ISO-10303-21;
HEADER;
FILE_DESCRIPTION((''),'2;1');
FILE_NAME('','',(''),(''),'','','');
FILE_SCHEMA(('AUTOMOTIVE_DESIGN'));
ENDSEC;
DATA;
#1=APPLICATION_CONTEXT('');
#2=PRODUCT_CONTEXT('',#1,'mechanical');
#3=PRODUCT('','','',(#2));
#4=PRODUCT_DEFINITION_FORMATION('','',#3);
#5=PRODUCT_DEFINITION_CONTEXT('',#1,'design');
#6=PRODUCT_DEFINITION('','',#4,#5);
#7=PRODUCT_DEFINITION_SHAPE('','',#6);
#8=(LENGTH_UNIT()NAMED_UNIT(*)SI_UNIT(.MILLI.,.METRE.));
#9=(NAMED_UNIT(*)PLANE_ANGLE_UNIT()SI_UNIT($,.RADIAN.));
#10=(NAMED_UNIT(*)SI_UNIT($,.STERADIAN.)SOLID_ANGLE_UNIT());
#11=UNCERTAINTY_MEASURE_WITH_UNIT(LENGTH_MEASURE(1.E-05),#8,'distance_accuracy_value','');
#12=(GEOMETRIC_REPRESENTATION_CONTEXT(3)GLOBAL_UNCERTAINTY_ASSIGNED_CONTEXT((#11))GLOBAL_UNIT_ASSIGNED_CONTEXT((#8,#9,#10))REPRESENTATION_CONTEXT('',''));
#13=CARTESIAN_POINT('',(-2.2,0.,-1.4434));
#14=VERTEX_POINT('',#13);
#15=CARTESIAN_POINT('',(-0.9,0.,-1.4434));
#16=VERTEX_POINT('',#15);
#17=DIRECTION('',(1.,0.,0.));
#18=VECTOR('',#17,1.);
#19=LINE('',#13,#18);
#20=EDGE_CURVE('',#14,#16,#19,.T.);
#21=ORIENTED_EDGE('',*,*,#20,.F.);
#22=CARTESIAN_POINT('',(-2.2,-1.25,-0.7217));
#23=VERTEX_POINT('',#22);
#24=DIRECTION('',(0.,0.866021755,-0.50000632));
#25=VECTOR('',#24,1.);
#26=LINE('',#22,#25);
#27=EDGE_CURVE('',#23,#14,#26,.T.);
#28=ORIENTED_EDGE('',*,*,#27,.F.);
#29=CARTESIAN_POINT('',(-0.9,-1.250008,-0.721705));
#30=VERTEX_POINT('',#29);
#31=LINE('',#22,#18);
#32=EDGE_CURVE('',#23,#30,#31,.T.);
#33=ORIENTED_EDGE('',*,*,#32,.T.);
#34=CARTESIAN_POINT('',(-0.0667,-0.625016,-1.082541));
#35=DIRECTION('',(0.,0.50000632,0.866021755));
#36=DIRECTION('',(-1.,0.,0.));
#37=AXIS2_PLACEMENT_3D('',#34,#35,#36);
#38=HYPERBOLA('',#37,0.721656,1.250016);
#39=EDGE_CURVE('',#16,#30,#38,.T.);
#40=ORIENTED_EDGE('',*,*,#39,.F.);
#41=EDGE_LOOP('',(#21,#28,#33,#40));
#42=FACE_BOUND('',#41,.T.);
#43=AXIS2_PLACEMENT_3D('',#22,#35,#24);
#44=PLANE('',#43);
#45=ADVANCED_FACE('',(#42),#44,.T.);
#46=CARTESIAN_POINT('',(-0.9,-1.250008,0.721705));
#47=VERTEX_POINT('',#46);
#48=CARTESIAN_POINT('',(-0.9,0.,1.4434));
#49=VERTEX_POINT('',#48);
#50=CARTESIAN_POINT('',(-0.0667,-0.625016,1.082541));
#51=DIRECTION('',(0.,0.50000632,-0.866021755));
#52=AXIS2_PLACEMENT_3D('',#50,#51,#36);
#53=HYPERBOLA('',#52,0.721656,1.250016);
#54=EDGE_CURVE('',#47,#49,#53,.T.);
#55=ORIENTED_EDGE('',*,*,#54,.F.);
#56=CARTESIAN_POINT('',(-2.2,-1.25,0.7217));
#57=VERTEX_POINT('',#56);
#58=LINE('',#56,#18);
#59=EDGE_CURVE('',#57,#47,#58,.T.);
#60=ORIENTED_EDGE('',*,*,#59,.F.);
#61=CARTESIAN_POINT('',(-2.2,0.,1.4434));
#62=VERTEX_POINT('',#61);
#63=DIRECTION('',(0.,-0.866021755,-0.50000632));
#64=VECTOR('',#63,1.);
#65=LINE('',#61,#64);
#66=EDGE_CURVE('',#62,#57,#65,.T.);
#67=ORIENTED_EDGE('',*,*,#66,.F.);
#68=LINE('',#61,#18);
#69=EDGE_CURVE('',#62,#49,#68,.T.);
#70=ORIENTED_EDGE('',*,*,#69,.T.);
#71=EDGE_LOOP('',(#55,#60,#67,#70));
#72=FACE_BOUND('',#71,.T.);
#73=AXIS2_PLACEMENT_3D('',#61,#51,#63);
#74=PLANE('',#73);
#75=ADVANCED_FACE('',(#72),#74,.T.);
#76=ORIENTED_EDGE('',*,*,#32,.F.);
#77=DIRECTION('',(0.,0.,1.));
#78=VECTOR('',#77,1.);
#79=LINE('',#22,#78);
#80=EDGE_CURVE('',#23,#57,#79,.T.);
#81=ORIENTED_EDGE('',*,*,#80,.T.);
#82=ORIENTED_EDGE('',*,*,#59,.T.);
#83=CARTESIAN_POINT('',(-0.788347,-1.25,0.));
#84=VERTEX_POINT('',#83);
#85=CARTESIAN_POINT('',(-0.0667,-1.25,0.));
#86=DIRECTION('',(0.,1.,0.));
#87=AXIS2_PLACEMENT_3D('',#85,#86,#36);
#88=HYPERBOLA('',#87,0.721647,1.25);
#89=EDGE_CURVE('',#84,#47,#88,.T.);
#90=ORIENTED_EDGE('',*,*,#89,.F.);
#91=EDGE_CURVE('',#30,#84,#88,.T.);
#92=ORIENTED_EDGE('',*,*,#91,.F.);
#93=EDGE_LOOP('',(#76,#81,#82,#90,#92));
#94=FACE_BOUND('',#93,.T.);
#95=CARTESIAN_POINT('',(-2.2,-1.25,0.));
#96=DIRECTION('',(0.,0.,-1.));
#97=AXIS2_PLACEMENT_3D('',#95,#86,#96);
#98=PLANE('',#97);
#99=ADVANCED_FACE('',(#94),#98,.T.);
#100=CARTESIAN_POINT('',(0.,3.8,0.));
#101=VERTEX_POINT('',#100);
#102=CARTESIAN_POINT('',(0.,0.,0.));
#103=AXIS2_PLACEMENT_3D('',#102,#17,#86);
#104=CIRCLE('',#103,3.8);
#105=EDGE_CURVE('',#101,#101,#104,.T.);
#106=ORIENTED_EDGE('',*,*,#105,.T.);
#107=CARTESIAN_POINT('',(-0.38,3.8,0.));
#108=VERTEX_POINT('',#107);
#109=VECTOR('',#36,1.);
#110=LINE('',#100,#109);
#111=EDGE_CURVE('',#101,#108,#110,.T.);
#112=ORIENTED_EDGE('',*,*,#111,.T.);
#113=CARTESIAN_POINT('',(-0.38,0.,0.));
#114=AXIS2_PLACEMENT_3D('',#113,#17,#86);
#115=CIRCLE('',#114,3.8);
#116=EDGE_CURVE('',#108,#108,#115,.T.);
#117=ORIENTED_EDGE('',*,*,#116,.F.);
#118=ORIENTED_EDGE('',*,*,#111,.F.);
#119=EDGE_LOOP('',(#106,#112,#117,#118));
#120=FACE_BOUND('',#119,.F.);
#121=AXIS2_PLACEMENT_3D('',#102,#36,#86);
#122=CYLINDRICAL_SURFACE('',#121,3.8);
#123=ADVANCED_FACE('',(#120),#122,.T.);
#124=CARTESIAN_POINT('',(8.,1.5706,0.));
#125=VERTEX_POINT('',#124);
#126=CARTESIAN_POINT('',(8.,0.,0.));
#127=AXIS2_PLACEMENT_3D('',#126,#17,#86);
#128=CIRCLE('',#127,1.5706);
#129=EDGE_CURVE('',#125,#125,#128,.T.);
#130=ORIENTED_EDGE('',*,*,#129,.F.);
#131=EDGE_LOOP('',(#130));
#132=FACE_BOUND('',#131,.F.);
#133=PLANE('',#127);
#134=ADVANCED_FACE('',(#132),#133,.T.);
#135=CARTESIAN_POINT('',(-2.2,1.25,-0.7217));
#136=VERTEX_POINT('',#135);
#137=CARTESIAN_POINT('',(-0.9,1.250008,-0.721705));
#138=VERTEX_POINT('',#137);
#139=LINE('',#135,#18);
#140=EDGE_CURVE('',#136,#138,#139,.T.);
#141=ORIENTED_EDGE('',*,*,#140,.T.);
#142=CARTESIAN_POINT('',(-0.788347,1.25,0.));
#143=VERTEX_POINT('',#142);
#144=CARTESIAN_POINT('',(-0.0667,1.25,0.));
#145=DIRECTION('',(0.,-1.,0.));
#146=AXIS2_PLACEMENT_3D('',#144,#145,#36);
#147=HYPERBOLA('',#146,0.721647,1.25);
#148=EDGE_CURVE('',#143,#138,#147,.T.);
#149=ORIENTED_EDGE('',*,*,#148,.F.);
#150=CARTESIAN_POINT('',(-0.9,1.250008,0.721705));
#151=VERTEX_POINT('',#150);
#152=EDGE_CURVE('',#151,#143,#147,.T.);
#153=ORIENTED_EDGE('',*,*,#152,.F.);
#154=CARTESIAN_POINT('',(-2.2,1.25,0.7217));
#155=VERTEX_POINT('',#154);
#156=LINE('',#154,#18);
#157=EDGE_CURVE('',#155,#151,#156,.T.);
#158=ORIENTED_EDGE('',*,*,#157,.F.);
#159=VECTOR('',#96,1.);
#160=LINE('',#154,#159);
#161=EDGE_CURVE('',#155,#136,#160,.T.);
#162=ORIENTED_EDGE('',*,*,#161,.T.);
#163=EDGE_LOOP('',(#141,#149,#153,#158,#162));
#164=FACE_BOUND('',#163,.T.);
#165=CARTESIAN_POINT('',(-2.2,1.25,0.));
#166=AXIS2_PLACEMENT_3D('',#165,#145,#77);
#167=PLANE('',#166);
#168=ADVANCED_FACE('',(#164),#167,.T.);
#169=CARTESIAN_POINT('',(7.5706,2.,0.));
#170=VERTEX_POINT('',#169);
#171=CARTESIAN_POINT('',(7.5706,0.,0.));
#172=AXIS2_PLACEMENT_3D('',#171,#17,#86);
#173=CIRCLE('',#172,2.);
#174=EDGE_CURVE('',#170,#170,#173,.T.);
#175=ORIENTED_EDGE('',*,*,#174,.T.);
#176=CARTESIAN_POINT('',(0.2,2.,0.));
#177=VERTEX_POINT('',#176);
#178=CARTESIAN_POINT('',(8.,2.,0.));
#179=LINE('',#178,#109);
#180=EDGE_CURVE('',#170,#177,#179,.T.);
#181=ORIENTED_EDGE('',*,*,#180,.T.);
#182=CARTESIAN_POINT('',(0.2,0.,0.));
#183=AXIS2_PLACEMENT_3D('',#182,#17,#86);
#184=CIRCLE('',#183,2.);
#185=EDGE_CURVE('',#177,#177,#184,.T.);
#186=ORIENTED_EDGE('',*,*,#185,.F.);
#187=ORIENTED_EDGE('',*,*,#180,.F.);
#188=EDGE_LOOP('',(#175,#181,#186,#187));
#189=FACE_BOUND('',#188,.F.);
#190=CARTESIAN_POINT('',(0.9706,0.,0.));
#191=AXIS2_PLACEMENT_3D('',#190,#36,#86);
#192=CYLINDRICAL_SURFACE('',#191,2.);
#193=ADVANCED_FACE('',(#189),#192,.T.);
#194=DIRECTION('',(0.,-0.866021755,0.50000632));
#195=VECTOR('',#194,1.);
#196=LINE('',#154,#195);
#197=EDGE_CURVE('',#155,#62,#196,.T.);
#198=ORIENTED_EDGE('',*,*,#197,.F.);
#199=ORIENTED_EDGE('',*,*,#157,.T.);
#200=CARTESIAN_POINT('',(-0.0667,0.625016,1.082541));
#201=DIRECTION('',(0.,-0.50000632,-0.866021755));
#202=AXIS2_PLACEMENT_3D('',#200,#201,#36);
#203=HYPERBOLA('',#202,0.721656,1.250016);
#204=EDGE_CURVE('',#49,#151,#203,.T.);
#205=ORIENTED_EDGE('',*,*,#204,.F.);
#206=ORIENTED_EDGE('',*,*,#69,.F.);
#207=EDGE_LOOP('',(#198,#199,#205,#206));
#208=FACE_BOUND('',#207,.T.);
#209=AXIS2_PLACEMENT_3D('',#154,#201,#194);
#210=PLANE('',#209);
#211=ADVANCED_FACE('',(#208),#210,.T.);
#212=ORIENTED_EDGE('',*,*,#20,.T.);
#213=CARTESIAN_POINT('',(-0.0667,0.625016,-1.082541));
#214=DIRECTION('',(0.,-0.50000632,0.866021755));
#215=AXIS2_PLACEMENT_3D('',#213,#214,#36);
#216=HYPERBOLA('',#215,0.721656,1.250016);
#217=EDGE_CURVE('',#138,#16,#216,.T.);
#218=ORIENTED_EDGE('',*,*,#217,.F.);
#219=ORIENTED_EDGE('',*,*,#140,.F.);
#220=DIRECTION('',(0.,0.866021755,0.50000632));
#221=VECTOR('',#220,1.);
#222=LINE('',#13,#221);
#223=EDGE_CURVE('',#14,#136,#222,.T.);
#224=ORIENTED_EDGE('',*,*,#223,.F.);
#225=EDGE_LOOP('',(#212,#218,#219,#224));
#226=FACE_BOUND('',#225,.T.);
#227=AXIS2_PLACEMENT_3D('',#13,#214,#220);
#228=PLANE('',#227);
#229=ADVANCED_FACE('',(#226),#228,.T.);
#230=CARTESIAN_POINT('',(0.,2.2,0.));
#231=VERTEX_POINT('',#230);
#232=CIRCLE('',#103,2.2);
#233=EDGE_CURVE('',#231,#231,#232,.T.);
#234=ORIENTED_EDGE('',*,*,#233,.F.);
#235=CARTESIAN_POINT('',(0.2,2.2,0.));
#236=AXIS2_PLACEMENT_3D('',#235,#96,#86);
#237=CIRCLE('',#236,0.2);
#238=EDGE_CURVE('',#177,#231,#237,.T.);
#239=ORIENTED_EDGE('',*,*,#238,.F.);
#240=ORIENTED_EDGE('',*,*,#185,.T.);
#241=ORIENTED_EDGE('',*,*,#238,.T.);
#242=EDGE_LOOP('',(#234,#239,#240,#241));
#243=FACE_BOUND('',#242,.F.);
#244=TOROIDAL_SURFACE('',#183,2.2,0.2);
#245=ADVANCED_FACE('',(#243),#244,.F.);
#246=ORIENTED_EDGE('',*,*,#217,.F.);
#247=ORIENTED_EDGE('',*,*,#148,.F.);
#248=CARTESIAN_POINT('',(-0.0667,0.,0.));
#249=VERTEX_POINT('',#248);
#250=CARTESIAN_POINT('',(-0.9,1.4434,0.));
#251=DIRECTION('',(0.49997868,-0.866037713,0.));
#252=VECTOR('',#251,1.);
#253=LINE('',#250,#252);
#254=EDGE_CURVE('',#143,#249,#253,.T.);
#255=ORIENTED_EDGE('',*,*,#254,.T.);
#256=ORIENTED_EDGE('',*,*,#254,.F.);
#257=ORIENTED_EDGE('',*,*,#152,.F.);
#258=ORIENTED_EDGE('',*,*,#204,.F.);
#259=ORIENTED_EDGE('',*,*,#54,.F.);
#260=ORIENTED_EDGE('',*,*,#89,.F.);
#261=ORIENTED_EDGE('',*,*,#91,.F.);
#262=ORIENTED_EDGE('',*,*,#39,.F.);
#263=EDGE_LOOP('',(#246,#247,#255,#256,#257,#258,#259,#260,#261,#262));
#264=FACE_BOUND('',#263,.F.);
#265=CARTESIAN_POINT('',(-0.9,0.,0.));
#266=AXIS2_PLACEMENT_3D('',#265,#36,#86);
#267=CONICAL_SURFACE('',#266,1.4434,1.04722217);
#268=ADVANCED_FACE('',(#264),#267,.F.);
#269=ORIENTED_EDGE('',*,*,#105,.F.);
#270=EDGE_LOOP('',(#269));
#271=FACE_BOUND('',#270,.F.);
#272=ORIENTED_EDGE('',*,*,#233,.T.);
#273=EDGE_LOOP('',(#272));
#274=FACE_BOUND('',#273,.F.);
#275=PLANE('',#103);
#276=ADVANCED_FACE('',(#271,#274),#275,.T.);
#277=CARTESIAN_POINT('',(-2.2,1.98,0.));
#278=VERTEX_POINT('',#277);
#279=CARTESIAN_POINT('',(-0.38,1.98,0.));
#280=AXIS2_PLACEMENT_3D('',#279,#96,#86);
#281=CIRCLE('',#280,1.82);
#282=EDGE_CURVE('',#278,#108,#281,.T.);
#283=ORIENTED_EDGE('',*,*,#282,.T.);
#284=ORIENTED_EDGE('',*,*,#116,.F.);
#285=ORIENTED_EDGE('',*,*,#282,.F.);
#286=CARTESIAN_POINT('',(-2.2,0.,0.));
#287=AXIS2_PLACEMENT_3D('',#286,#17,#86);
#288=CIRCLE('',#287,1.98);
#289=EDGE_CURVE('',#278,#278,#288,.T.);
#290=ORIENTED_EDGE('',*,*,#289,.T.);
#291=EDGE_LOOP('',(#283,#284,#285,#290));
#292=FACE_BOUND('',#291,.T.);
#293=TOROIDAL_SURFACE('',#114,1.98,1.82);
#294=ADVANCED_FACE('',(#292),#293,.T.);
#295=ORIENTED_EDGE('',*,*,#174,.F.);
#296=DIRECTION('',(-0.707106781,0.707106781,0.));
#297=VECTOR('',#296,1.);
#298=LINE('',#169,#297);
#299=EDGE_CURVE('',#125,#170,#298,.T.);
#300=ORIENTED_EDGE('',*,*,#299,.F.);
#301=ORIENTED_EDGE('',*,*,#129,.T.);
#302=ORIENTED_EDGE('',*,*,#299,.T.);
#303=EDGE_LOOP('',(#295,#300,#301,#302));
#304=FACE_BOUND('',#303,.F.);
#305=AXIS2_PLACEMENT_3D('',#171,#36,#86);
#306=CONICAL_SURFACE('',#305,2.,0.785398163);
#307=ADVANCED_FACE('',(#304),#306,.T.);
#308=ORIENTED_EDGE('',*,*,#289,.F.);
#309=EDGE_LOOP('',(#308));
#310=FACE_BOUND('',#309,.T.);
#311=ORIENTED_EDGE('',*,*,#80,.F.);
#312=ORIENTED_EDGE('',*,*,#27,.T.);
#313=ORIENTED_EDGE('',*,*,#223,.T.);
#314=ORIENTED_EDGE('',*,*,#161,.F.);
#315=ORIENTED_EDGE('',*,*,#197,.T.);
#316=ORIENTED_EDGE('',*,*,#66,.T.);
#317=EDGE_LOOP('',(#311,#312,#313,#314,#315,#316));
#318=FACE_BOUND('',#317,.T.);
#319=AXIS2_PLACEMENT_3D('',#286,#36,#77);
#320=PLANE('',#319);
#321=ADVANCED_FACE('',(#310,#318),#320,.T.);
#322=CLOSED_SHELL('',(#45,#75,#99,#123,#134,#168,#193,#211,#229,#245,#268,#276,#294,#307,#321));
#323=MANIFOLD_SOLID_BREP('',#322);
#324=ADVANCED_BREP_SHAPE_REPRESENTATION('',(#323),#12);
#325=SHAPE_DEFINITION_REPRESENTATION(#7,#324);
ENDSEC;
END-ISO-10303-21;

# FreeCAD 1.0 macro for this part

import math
import FreeCAD as App
import Part
import Sketcher
from FreeCAD import Vector
Q = App.Units.Quantity


def edges_at(feature, points):
    """Names of the edges that pass closest to the given points."""
    edges = feature.Shape.Edges
    near = lambda p: min(range(len(edges)), key=lambda i: edges[i].distToShape(Part.Vertex(*p))[0])
    return sorted({f"Edge{near(p) + 1}" for p in points})


def add_polygon(sketch, points):
    """Adds a closed chain of lines whose ends are joined by coincident constraints."""
    first, n = sketch.GeometryCount, len(points)
    for a, b in zip(points, points[1:] + points[:1]):
        sketch.addGeometry(Part.LineSegment(App.Vector(*a, 0), App.Vector(*b, 0)), False)
    for i in range(n):
        sketch.addConstraint(Sketcher.Constraint("Coincident", first + i, 2, first + (i + 1) % n, 1))

doc = App.newDocument("Part")
body = doc.addObject("PartDesign::Body", "Body")

# Sketch on XY plane
sketch1 = doc.addObject("Sketcher::SketchObject", "Sketch")
body.addObject(sketch1)
sketch1.AttachmentSupport = (doc.XY_Plane, [""])
sketch1.MapMode = "FlatFace"
add_polygon(sketch1, [(-0.9, 1.4), (-0.1, 0), (8, 0), (8, 2), (0, 2), (0, 3.8), (-2.2, 3.8), (-2.2, 1.4)])  # lines 0-7
sketch1.addConstraint([
    Sketcher.Constraint("Horizontal", 1),
    Sketcher.Constraint("Vertical", 2),
    Sketcher.Constraint("Horizontal", 3),
    Sketcher.Constraint("Vertical", 4),
    Sketcher.Constraint("Horizontal", 5),
    Sketcher.Constraint("Vertical", 6),
    Sketcher.Constraint("Horizontal", 7),
    Sketcher.Constraint("PointOnObject", 0, 2, -1),
    Sketcher.Constraint("PointOnObject", 3, 2, -2),
    Sketcher.Constraint("DistanceX", 3, 2, 3, 1, 8.0),
    Sketcher.Constraint("DistanceX", 5, 2, 5, 1, 2.2),
    Sketcher.Constraint("DistanceX", 7, 1, 7, 2, 1.3),
    Sketcher.Constraint("DistanceY", 2, 1, 2, 2, 2.0),
    Sketcher.Constraint("DistanceY", 4, 1, 4, 2, 1.8),
    Sketcher.Constraint("DistanceX", 1, 1, 1, 2, 8.0667),
    Sketcher.Constraint("DistanceY", 6, 2, 6, 1, 2.3566),
])
revolution = doc.addObject("PartDesign::Revolution", "Revolution")
body.addObject(revolution)
revolution.Profile = sketch1
revolution.ReferenceAxis = (sketch1, ["H_Axis"])
revolution.Angle = 360

# Sketch on YZ plane
sketch2 = doc.addObject("Sketcher::SketchObject", "Sketch001")
body.addObject(sketch2)
sketch2.AttachmentSupport = (doc.YZ_Plane, [""])
sketch2.MapMode = "FlatFace"
sketch2.AttachmentOffset = App.Placement(Vector(0, 0, -2.2), App.Rotation())
sketch2.addGeometry([
    Part.LineSegment(Vector(1.2, 0.7, 0), Vector(0, 1.4, 0)),  # 0
    Part.ArcOfCircle(Part.Circle(Vector(0, 0, 0), Vector(0, 0, 1), 1.4), math.radians(30), math.radians(90)),  # 1
    Part.ArcOfCircle(Part.Circle(Vector(0, 0, 0), Vector(0, 0, 1), 1.4), math.radians(90), math.radians(150)),  # 2
    Part.LineSegment(Vector(0, 1.4, 0), Vector(-1.2, 0.7, 0)),  # 3
    Part.ArcOfCircle(Part.Circle(Vector(0, 0, 0), Vector(0, 0, 1), 1.4), math.radians(-30), math.radians(30)),  # 4
    Part.LineSegment(Vector(1.2, 0.7, 0), Vector(1.2, -0.7, 0)),  # 5
    Part.LineSegment(Vector(-1.2, 0.7, 0), Vector(-1.2, -0.7, 0)),  # 6
    Part.ArcOfCircle(Part.Circle(Vector(0, 0, 0), Vector(0, 0, 1), 1.4), math.radians(150), math.radians(210)),  # 7
    Part.LineSegment(Vector(-1.2, -0.7, 0), Vector(0, -1.4, 0)),  # 8
    Part.ArcOfCircle(Part.Circle(Vector(0, 0, 0), Vector(0, 0, 1), 1.4), math.radians(-150), math.radians(-90)),  # 9
    Part.ArcOfCircle(Part.Circle(Vector(0, 0, 0), Vector(0, 0, 1), 1.4), math.radians(-90), math.radians(-30)),  # 10
    Part.LineSegment(Vector(0, -1.4, 0), Vector(1.2, -0.7, 0)),  # 11
], False)
sketch2.addConstraint([
    Sketcher.Constraint("Coincident", 0, 1, 1, 1),
    Sketcher.Constraint("Coincident", 1, 2, 0, 2),
    Sketcher.Constraint("Coincident", 2, 1, 3, 1),
    Sketcher.Constraint("Coincident", 3, 2, 2, 2),
    Sketcher.Constraint("Coincident", 4, 1, 5, 2),
    Sketcher.Constraint("Coincident", 5, 1, 4, 2),
    Sketcher.Constraint("Coincident", 6, 1, 7, 1),
    Sketcher.Constraint("Coincident", 7, 2, 6, 2),
    Sketcher.Constraint("Coincident", 8, 1, 9, 1),
    Sketcher.Constraint("Coincident", 9, 2, 8, 2),
    Sketcher.Constraint("Coincident", 10, 1, 11, 1),
    Sketcher.Constraint("Coincident", 11, 2, 10, 2),
    Sketcher.Constraint("Vertical", 5),
    Sketcher.Constraint("Vertical", 6),
    Sketcher.Constraint("Coincident", 1, 3, -1, 1),
    Sketcher.Constraint("Coincident", 2, 3, -1, 1),
    Sketcher.Constraint("Coincident", 4, 3, -1, 1),
    Sketcher.Constraint("Coincident", 7, 3, -1, 1),
    Sketcher.Constraint("Coincident", 9, 3, -1, 1),
    Sketcher.Constraint("Coincident", 10, 3, -1, 1),
    Sketcher.Constraint("Coincident", 2, 1, 1, 2),
    Sketcher.Constraint("Coincident", 5, 1, 0, 1),
    Sketcher.Constraint("Coincident", 6, 1, 3, 2),
    Sketcher.Constraint("Coincident", 8, 1, 7, 2),
    Sketcher.Constraint("Coincident", 10, 1, 9, 2),
    Sketcher.Constraint("PointOnObject", 1, 2, -2),
    Sketcher.Constraint("PointOnObject", 9, 2, -2),
    Sketcher.Constraint("Parallel", 0, 8),
    Sketcher.Constraint("Parallel", 3, 11),
    Sketcher.Constraint("Angle", 0, Q("149.9996 deg")),
    Sketcher.Constraint("Radius", 1, 1.4434),
])
pad1 = doc.addObject("PartDesign::Pad", "Pad")
body.addObject(pad1)
pad1.Profile = sketch2
pad1.Type = "UpToFirst"
doc.recompute()

fillet = doc.addObject("PartDesign::Fillet", "Fillet")
body.addObject(fillet)
fillet.Base = (pad1, edges_at(pad1, [(-2.2, -3.8, 0)]))
fillet.Radius = 1.82
doc.recompute()

chamfer = doc.addObject("PartDesign::Chamfer", "Chamfer")
body.addObject(chamfer)
chamfer.Base = (fillet, edges_at(fillet, [(8, -2, 0)]))
chamfer.ChamferType = "Two distances"
chamfer.Size = 0.4294
chamfer.Size2 = 0.4294
doc.recompute()

fillet2 = doc.addObject("PartDesign::Fillet", "Fillet001")
body.addObject(fillet2)
fillet2.Base = (chamfer, edges_at(chamfer, [(0, -2, 0)]))
fillet2.Radius = 0.2

doc.recompute()
